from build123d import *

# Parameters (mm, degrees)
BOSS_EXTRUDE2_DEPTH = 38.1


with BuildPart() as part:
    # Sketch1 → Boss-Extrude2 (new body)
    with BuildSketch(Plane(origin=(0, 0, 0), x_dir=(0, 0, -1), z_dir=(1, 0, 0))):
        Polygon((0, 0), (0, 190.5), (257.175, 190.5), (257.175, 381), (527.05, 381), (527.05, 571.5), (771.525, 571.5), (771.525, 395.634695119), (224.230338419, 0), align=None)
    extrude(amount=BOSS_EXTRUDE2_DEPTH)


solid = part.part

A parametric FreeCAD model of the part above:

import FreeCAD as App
import Part
import Sketcher
Q = App.Units.Quantity


def add_polygon(sketch, points):
    """Adds a closed chain of lines whose ends are joined by coincident constraints."""
    first, n = sketch.GeometryCount, len(points)
    for a, b in zip(points, points[1:] + points[:1]):
        sketch.addGeometry(Part.LineSegment(App.Vector(*a, 0), App.Vector(*b, 0)), False)
    for i in range(n):
        sketch.addConstraint(Sketcher.Constraint("Coincident", first + i, 2, first + (i + 1) % n, 1))

doc = App.newDocument("Part")
params = doc.addObject("Spreadsheet::Sheet", "Params")
for row, (alias, value) in enumerate([
    ("sketch1_width", "7.5 in"),
    ("sketch1_height", "9.625 in"),
    ("sketch1_height2", "10.625 in"),
    ("sketch1_height3", "10.125 in"),
    ("pad1_length", "1.5 in"),
], start=1):
    params.set(f"A{row}", alias)
    params.set(f"B{row}", "=" + value)
    params.setAlias(f"B{row}", alias)

body = doc.addObject("PartDesign::Body", "Body")

sketch1 = body.newObject("Sketcher::SketchObject", "Sketch")
sketch1.AttachmentSupport = (doc.getObject("YZ_Plane"), [""])
sketch1.MapMode = "FlatFace"
add_polygon(sketch1, [(190, 0), (0, 0), (0, -224), (396, -772), (572, -772), (572, -527), (381, -527), (381, -257), (190, -257)])
sketch1.addConstraint([
    Sketcher.Constraint("Horizontal", 0),
    Sketcher.Constraint("Vertical", 1),
    Sketcher.Constraint("Horizontal", 3),
    Sketcher.Constraint("Vertical", 4),
    Sketcher.Constraint("Horizontal", 5),
    Sketcher.Constraint("Vertical", 6),
    Sketcher.Constraint("Horizontal", 7),
    Sketcher.Constraint("Vertical", 8),
    Sketcher.Constraint("Coincident", 0, 2, -1, 1),
    Sketcher.Constraint("Equal", 0, 5),
    Sketcher.Constraint("Equal", 5, 7),
    Sketcher.Constraint("DistanceX", 0, 2, 0, 1, Q("7.5 in")),
    Sketcher.Constraint("DistanceY", 4, 1, 4, 2, Q("9.625 in")),
    Sketcher.Constraint("DistanceY", 6, 1, 6, 2, Q("10.625 in")),
    Sketcher.Constraint("DistanceY", 8, 1, 8, 2, Q("10.125 in")),
    Sketcher.Constraint("DistanceY", 1, 2, 1, 1, Q("224.230338 mm")),
    Sketcher.Constraint("DistanceX", 3, 1, 3, 2, Q("175.865305 mm")),
])
sketch1.setExpression("Constraints[20]", "Params.sketch1_width")
sketch1.setExpression("Constraints[21]", "Params.sketch1_height")
sketch1.setExpression("Constraints[22]", "Params.sketch1_height2")
sketch1.setExpression("Constraints[23]", "Params.sketch1_height3")
pad1 = body.newObject("PartDesign::Pad", "Pad")
pad1.Profile = sketch1
pad1.setExpression("Length", "Params.pad1_length")

doc.recompute()
